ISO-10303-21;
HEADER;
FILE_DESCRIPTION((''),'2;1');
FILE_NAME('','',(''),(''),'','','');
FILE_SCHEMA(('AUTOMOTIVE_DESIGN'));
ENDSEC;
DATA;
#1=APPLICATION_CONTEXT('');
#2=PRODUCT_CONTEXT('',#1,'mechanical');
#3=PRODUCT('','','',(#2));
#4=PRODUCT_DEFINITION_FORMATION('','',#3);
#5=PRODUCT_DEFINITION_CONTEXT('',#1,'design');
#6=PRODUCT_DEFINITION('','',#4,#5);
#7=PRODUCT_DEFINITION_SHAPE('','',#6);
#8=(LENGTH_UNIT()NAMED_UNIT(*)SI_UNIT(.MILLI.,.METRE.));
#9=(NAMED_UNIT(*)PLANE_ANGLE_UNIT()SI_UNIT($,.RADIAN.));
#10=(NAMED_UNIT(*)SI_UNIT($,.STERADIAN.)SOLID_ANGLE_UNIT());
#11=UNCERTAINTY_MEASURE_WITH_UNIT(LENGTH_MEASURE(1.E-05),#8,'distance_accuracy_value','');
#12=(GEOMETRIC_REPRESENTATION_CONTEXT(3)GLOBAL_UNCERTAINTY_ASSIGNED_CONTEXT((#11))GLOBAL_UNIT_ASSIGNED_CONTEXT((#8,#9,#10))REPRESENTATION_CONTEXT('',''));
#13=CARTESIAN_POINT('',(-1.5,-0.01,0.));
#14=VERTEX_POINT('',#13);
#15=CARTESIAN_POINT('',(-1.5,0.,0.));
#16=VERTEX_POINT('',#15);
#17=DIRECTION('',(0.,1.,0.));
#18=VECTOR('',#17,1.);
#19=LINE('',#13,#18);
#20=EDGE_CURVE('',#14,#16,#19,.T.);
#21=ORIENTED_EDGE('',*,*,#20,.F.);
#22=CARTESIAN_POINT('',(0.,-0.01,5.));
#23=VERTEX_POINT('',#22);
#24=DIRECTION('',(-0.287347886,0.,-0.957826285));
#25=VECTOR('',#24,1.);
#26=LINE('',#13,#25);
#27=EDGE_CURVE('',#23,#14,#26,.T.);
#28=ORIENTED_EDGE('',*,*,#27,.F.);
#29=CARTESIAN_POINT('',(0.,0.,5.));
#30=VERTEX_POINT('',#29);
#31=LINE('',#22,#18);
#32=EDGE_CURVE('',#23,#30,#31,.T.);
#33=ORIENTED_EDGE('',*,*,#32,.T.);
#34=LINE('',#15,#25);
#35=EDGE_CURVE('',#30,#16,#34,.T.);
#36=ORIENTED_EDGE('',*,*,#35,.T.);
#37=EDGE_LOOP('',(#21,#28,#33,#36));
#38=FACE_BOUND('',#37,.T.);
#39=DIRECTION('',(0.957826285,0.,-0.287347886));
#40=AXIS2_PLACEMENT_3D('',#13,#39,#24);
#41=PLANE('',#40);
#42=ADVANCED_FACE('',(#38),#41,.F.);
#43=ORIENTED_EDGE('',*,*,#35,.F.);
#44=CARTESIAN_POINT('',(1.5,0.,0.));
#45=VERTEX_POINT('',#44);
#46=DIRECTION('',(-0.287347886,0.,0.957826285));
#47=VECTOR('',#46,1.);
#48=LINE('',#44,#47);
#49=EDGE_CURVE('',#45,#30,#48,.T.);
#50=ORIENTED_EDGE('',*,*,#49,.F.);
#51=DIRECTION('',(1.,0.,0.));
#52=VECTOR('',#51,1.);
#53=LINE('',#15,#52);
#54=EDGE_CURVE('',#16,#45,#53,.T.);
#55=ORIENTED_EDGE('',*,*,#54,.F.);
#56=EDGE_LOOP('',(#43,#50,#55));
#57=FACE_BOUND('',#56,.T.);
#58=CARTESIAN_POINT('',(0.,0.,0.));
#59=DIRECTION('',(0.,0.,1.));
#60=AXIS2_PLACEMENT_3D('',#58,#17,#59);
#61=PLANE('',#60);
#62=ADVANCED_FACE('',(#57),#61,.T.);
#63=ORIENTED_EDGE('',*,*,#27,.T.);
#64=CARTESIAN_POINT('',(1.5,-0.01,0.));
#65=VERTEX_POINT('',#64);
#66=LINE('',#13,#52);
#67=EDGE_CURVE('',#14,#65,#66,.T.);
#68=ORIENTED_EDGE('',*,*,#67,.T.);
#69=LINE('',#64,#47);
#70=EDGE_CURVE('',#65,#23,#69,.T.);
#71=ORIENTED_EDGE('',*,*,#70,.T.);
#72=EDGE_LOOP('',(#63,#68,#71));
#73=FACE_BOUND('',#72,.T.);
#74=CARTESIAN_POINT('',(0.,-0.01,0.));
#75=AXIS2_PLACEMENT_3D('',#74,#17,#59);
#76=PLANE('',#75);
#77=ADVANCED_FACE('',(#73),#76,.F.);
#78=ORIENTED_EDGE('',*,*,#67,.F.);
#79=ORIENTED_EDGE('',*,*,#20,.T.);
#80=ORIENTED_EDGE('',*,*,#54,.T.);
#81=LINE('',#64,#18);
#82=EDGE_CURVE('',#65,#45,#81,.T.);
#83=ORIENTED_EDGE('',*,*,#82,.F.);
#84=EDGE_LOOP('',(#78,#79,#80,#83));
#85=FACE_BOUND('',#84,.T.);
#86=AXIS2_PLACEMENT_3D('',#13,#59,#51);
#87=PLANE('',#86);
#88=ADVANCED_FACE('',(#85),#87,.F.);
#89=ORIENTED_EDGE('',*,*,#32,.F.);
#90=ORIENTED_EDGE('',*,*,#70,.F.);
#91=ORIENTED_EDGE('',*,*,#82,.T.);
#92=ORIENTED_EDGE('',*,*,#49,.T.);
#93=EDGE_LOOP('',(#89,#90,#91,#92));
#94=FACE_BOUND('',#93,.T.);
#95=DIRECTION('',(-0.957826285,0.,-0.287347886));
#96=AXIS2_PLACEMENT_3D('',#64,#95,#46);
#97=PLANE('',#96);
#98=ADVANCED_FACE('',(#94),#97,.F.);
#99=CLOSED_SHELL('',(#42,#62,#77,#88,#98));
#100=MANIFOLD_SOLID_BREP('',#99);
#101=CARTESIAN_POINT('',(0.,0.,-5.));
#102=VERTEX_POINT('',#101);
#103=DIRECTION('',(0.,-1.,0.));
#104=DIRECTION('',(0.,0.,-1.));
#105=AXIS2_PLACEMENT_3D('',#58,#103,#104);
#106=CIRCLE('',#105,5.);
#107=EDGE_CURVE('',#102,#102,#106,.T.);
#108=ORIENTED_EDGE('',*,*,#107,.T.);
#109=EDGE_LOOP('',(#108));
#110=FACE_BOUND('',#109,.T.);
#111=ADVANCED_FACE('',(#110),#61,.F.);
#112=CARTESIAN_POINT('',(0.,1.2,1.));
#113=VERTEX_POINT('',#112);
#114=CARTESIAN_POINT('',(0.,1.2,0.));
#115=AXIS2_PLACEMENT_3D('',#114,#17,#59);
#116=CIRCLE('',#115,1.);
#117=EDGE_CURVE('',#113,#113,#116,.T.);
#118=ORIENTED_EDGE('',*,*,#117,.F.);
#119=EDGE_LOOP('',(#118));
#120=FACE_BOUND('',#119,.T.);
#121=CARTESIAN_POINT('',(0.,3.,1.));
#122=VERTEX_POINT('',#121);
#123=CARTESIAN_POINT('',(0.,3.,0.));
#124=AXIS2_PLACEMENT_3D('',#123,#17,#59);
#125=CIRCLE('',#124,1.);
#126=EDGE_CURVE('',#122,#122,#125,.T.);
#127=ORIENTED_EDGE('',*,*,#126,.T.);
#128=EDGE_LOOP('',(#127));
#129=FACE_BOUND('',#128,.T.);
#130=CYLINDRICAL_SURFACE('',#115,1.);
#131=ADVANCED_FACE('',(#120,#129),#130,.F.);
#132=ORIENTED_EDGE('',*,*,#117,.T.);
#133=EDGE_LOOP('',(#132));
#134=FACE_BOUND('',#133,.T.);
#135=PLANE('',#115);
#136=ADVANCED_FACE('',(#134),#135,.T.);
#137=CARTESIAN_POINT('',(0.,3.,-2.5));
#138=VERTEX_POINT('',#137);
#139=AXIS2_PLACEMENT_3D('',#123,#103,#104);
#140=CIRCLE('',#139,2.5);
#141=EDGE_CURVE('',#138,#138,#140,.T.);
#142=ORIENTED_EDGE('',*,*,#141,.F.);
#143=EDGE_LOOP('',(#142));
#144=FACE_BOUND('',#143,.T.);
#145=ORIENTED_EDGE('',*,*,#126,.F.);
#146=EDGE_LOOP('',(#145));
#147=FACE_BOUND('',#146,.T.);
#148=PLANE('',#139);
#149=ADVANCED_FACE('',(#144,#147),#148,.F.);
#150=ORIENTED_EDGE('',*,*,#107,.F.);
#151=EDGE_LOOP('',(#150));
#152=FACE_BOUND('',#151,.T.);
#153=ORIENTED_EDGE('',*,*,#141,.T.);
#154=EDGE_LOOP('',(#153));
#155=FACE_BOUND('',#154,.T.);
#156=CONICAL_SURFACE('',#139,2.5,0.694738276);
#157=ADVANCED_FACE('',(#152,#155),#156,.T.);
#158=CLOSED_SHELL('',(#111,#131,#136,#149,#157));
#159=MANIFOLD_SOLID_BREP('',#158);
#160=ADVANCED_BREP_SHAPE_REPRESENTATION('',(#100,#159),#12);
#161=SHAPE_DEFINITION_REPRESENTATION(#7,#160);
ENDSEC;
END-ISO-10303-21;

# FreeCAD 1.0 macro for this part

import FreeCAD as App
import Part
import Sketcher

doc = App.newDocument("Part")
params = doc.addObject("Spreadsheet::Sheet", "Params")
for row, (alias, value) in enumerate([
    ("sketch1_width", "5 mm"),
    ("sketch1_height", "3 mm"),
    ("sketch1_width2", "2.5 mm"),
    ("revolution_angle", "360 deg"),
    ("sketch2_diameter", "2 mm"),
    ("pocket1_length", "1.8 mm"),
    ("sketch3_width", "3 mm"),
    ("pad1_length", "0.01 mm"),
], start=1):
    params.set(f"A{row}", alias)
    params.set(f"B{row}", "=" + value)
    params.setAlias(f"B{row}", alias)

body = doc.addObject("PartDesign::Body", "Body")

# Sketch on XY plane
sketch1 = doc.addObject("Sketcher::SketchObject", "Sketch")
body.addObject(sketch1)
sketch1.AttachmentSupport = (doc.XY_Plane, [""])
sketch1.MapMode = "FlatFace"
sketch1.addGeometry([
    Part.LineSegment(App.Vector(0, 0, 0), App.Vector(0, 3, 0)),
    Part.LineSegment(App.Vector(0, 3, 0), App.Vector(-2.5, 3, 0)),
    Part.LineSegment(App.Vector(-2.5, 3, 0), App.Vector(-5, 0, 0)),
    Part.LineSegment(App.Vector(-5, 0, 0), App.Vector(0, 0, 0)),
], False)
sketch1.addConstraint([
    Sketcher.Constraint("Coincident", 0, 2, 1, 1),
    Sketcher.Constraint("Coincident", 1, 2, 2, 1),
    Sketcher.Constraint("Coincident", 2, 2, 3, 1),
    Sketcher.Constraint("Coincident", 3, 2, 0, 1),
    Sketcher.Constraint("Vertical", 0),
    Sketcher.Constraint("Horizontal", 1),
    Sketcher.Constraint("Horizontal", 3),
    Sketcher.Constraint("Coincident", 3, 2, -1, 1),
    Sketcher.Constraint("DistanceX", 3, 1, 3, 2, 5.0),
    Sketcher.Constraint("DistanceY", 0, 1, 0, 2, 3.0),
    Sketcher.Constraint("DistanceX", 1, 2, 1, 1, 2.5),
])
sketch1.setExpression("Constraints[8]", "Params.sketch1_width")
sketch1.setExpression("Constraints[9]", "Params.sketch1_height")
sketch1.setExpression("Constraints[10]", "Params.sketch1_width2")
revolution = doc.addObject("PartDesign::Revolution", "Revolution")
body.addObject(revolution)
revolution.Profile = sketch1
revolution.ReferenceAxis = (sketch1, ["V_Axis"])
revolution.setExpression("Angle", "Params.revolution_angle")

# Sketch on XZ plane
sketch2 = doc.addObject("Sketcher::SketchObject", "Sketch001")
body.addObject(sketch2)
sketch2.AttachmentSupport = (doc.XZ_Plane, [""])
sketch2.MapMode = "FlatFace"
sketch2.AttachmentOffset = App.Placement(App.Vector(0, 0, -3), App.Rotation())
sketch2.addGeometry(Part.Circle(App.Vector(0, 0, 0), App.Vector(0, 0, 1), 1), False)
sketch2.addConstraint([
    Sketcher.Constraint("Coincident", 0, 3, -1, 1),
    Sketcher.Constraint("Diameter", 0, 2.0),
])
sketch2.setExpression("Constraints[1]", "Params.sketch2_diameter")
pocket1 = doc.addObject("PartDesign::Pocket", "Pocket")
body.addObject(pocket1)
pocket1.Profile = sketch2
pocket1.setExpression("Length", "Params.pocket1_length")
pocket1.Reversed = True
body2 = doc.addObject("PartDesign::Body", "Body001")

# Sketch on XZ plane
sketch3 = doc.addObject("Sketcher::SketchObject", "Sketch002")
body2.addObject(sketch3)
sketch3.AttachmentSupport = (doc.getObject("XZ_Plane001"), [""])
sketch3.MapMode = "FlatFace"
sketch3.addGeometry([
    Part.LineSegment(App.Vector(-1.5, 0, 0), App.Vector(1.5, 0, 0)),
    Part.LineSegment(App.Vector(1.5, 0, 0), App.Vector(0, 5, 0)),
    Part.LineSegment(App.Vector(0, 5, 0), App.Vector(-1.5, 0, 0)),
], False)
sketch3.addConstraint([
    Sketcher.Constraint("Coincident", 0, 2, 1, 1),
    Sketcher.Constraint("Coincident", 1, 2, 2, 1),
    Sketcher.Constraint("Coincident", 2, 2, 0, 1),
    Sketcher.Constraint("Horizontal", 0),
    Sketcher.Constraint("Symmetric", 0, 2, 2, 2, -1, 1),
    Sketcher.Constraint("PointOnObject", 1, 2, -2),
    Sketcher.Constraint("DistanceX", 0, 1, 0, 2, 3.0),
    Sketcher.Constraint("DistanceY", -1, 1, 1, 2, 5.0),
])
sketch3.setExpression("Constraints[6]", "Params.sketch3_width")
pad1 = doc.addObject("PartDesign::Pad", "Pad")
body2.addObject(pad1)
pad1.Profile = sketch3
pad1.setExpression("Length", "Params.pad1_length")

doc.recompute()
